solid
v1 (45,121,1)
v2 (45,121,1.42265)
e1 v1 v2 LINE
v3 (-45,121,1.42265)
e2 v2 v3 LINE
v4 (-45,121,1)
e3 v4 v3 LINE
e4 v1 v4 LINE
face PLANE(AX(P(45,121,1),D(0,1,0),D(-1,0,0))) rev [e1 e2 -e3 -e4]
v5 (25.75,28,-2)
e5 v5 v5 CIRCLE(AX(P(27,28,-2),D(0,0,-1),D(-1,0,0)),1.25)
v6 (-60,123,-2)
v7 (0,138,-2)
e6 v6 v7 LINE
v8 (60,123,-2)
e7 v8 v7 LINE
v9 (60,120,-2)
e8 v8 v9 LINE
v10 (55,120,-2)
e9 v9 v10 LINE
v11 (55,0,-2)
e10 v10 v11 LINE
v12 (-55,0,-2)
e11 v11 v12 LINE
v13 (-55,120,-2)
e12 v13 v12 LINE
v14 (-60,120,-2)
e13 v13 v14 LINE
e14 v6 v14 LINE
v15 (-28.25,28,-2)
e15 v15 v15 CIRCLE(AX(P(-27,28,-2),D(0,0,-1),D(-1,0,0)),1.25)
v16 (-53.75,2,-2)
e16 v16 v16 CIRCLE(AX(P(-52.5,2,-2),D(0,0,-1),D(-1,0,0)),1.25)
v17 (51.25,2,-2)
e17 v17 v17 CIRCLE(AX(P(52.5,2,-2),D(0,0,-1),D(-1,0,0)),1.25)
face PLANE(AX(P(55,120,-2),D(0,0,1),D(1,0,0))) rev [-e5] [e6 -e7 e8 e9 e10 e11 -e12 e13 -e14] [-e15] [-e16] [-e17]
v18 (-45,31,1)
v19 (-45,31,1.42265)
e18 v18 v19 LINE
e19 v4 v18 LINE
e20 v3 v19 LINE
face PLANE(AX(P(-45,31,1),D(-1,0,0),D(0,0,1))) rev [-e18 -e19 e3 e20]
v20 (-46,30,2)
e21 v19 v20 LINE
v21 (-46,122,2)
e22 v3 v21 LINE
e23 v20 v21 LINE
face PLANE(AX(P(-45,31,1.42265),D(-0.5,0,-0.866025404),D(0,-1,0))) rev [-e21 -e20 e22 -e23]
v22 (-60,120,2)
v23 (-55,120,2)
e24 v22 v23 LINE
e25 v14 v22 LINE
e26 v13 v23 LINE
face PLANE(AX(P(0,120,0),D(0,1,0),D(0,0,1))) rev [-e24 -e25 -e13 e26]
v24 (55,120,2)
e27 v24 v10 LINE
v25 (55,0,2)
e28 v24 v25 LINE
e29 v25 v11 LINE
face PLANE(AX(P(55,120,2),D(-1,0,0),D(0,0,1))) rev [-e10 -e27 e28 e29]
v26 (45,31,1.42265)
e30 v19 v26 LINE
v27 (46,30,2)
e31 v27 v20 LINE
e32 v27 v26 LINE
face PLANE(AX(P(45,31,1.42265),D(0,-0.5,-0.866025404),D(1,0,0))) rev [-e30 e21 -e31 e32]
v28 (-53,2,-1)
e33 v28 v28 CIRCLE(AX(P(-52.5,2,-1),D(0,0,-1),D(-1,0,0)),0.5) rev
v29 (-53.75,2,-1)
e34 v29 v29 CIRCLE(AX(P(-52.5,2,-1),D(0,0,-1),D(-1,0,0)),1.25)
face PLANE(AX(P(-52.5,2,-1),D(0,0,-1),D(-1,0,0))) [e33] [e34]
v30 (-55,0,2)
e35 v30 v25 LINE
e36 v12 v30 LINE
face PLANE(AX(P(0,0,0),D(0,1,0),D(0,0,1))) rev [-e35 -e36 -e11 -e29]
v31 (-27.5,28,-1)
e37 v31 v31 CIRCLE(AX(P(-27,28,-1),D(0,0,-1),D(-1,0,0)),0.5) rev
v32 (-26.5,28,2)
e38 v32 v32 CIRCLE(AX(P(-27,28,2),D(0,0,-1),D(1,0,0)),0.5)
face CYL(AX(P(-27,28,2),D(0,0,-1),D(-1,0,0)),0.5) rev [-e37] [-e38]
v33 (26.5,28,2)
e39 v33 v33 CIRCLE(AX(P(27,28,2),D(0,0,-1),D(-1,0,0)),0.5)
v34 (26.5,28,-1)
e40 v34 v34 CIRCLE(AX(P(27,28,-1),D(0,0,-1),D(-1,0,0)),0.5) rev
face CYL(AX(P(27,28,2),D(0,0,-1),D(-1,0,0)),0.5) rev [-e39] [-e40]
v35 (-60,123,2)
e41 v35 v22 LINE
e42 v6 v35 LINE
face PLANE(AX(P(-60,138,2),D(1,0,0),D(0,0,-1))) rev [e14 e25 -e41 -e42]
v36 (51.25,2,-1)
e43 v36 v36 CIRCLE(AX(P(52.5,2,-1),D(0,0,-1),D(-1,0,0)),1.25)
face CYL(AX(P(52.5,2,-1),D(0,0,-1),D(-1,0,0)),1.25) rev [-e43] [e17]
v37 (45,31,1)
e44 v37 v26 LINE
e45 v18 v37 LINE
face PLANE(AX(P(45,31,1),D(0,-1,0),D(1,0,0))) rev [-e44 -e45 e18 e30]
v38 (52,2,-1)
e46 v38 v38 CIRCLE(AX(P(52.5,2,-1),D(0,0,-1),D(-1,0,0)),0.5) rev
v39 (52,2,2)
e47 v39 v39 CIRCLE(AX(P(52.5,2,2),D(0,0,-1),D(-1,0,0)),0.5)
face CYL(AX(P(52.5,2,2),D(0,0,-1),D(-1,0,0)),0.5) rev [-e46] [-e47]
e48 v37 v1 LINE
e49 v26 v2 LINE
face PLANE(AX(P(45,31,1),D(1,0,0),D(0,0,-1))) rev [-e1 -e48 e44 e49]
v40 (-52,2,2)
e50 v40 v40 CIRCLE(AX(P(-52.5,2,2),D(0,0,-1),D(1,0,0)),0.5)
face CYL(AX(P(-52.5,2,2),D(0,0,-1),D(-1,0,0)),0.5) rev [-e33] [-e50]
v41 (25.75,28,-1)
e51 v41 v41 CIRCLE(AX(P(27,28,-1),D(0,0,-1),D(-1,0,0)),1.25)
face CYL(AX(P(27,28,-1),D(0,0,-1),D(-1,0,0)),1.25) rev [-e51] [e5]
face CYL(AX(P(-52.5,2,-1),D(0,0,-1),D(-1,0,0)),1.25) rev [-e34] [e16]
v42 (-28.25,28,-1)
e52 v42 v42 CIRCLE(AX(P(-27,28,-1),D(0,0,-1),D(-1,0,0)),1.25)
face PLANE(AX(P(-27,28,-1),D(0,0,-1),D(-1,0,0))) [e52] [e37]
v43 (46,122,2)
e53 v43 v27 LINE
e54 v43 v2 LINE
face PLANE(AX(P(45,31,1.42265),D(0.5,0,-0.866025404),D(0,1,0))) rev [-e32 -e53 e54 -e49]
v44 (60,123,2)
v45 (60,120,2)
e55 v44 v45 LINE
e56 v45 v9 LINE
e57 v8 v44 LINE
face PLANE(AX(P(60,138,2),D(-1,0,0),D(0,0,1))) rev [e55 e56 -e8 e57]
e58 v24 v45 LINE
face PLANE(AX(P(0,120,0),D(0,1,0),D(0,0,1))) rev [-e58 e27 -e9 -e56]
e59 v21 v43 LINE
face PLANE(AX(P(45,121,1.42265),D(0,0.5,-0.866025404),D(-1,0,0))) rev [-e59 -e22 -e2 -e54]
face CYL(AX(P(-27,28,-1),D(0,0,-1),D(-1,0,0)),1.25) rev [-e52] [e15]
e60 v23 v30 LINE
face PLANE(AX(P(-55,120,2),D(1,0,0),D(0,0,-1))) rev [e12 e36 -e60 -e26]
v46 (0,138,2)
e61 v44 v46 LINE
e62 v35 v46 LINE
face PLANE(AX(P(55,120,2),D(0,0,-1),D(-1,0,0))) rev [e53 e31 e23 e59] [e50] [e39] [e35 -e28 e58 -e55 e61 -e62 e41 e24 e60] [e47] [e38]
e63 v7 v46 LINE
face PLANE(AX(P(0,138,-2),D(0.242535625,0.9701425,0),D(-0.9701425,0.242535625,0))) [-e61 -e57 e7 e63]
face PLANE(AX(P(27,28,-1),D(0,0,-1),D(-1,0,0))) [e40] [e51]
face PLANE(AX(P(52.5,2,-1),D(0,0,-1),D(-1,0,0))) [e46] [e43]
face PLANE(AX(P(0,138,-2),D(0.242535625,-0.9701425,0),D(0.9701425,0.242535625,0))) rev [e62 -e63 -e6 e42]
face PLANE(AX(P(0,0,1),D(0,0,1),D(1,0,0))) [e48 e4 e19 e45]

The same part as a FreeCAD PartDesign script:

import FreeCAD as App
import Part
import Sketcher

V = App.Vector


def edges_at(feature, points):
    """Names of the edges that pass closest to the given points."""
    edges = feature.Shape.Edges
    near = lambda p: min(range(len(edges)), key=lambda i: edges[i].distToShape(Part.Vertex(*p))[0])
    return sorted({f"Edge{near(p) + 1}" for p in points})


def add_polygon(sketch, points):
    """Adds a closed chain of lines whose ends are joined by coincident constraints."""
    first, n = sketch.GeometryCount, len(points)
    for a, b in zip(points, points[1:] + points[:1]):
        sketch.addGeometry(Part.LineSegment(App.Vector(*a, 0), App.Vector(*b, 0)), False)
    for i in range(n):
        sketch.addConstraint(Sketcher.Constraint("Coincident", first + i, 2, first + (i + 1) % n, 1))

doc = App.newDocument("Part")
body = doc.addObject("PartDesign::Body", "Body")

# Sketch on XZ plane
sketch1 = body.newObject("Sketcher::SketchObject", "Sketch")
sketch1.AttachmentSupport = (doc.getObject("XZ_Plane"), [""])
sketch1.MapMode = "FlatFace"
add_polygon(sketch1, [(-55, -2), (-55, 2), (55, 2), (55, -2)])  # lines 0-3
sketch1.addConstraint([
    Sketcher.Constraint("Vertical", 0),
    Sketcher.Constraint("Horizontal", 1),
    Sketcher.Constraint("Vertical", 2),
    Sketcher.Constraint("Horizontal", 3),
    Sketcher.Constraint("Symmetric", 0, 2, 2, 2, -1, 1),
    Sketcher.Constraint("DistanceX", 1, 1, 1, 2, 110.0),
    Sketcher.Constraint("DistanceY", 0, 1, 0, 2, 4.0),
])
pad1 = body.newObject("PartDesign::Pad", "Pad")
pad1.Profile = sketch1
pad1.Length = 120
pad1.Reversed = True

# Sketch on XZ plane
sketch2 = body.newObject("Sketcher::SketchObject", "Sketch001")
sketch2.AttachmentSupport = (doc.getObject("XZ_Plane"), [""])
sketch2.MapMode = "FlatFace"
sketch2.AttachmentOffset = App.Placement(V(0, 0, -120), App.Rotation())
add_polygon(sketch2, [(-60, -2), (-60, 2), (60, 2), (60, -2)])  # lines 0-3
sketch2.addConstraint([
    Sketcher.Constraint("Vertical", 0),
    Sketcher.Constraint("Horizontal", 1),
    Sketcher.Constraint("Vertical", 2),
    Sketcher.Constraint("Horizontal", 3),
    Sketcher.Constraint("Symmetric", 0, 2, 2, 2, -1, 1),
    Sketcher.Constraint("DistanceX", 1, 1, 1, 2, 120.0),
    Sketcher.Constraint("DistanceY", 0, 1, 0, 2, 4.0),
])
pad2 = body.newObject("PartDesign::Pad", "Pad001")
pad2.Profile = sketch2
pad2.Length = 18
pad2.Reversed = True

# Sketch on XY plane
sketch3 = body.newObject("Sketcher::SketchObject", "Sketch002")
sketch3.AttachmentSupport = (doc.getObject("XY_Plane"), [""])
sketch3.MapMode = "FlatFace"
sketch3.AttachmentOffset = App.Placement(V(0, 0, 2), App.Rotation())
add_polygon(sketch3, [(0, 138), (-60, 138), (-60, 123)])  # lines 0-2
sketch3.addConstraint([
    Sketcher.Constraint("Horizontal", 0),
    Sketcher.Constraint("Vertical", 1),
    Sketcher.Constraint("PointOnObject", 2, 2, -2),
    Sketcher.Constraint("DistanceX", 0, 2, 0, 1, 60.0),
    Sketcher.Constraint("DistanceY", 1, 2, 1, 1, 15.0),
    Sketcher.Constraint("DistanceY", -1, 1, 0, 2, 138.0),
])
pocket1 = body.newObject("PartDesign::Pocket", "Pocket")
pocket1.Profile = sketch3
pocket1.Type = "ThroughAll"
doc.recompute()

mirrored = body.newObject("PartDesign::Mirrored", "Mirrored")
mirrored.Originals = [pocket1]
mirrored.MirrorPlane = (doc.getObject("YZ_Plane"), [""])
body.Tip = mirrored

# Sketch on XY plane
sketch4 = body.newObject("Sketcher::SketchObject", "Sketch003")
sketch4.AttachmentSupport = (doc.getObject("XY_Plane"), [""])
sketch4.MapMode = "FlatFace"
sketch4.AttachmentOffset = App.Placement(V(0, 0, 2), App.Rotation())
add_polygon(sketch4, [(-45, 121), (-45, 31), (45, 31), (45, 121)])  # lines 0-3
sketch4.addConstraint([
    Sketcher.Constraint("Vertical", 0),
    Sketcher.Constraint("Horizontal", 1),
    Sketcher.Constraint("Vertical", 2),
    Sketcher.Constraint("Horizontal", 3),
    Sketcher.Constraint("Equal", 3, 0),
    Sketcher.Constraint("DistanceX", 1, 1, 1, 2, 90.0),
    Sketcher.Constraint("DistanceX", 0, 2, -1, 1, 45.0),
    Sketcher.Constraint("DistanceY", -1, 1, 0, 2, 31.0),
])
pocket2 = body.newObject("PartDesign::Pocket", "Pocket001")
pocket2.Profile = sketch4
pocket2.Length = 1

# Sketch on XY plane
sketch5 = body.newObject("Sketcher::SketchObject", "Sketch004")
sketch5.AttachmentSupport = (doc.getObject("XY_Plane"), [""])
sketch5.MapMode = "FlatFace"
sketch5.AttachmentOffset = App.Placement(V(0, 0, -2), App.Rotation())
sketch5.addGeometry([
    Part.Circle(V(52.5, 2, 0), V(0, 0, 1), 0.5),
    Part.Circle(V(27, 28, 0), V(0, 0, 1), 0.5),
    Part.Circle(V(-27, 28, 0), V(0, 0, 1), 0.5),
    Part.Circle(V(-52.5, 2, 0), V(0, 0, 1), 0.5),
], False)
sketch5.addConstraint([
    Sketcher.Constraint("Equal", 0, 1),
    Sketcher.Constraint("Equal", 1, 2),
    Sketcher.Constraint("Equal", 2, 3),
    Sketcher.Constraint("Symmetric", 1, 3, 2, 3, -2),
    Sketcher.Constraint("Symmetric", 0, 3, 3, 3, -2),
    Sketcher.Constraint("Diameter", 0, 1.0),
    Sketcher.Constraint("DistanceY", -1, 1, 0, 3, 2.0),
    Sketcher.Constraint("DistanceX", -1, 1, 1, 3, 27.0),
    Sketcher.Constraint("DistanceY", -1, 1, 1, 3, 28.0),
    Sketcher.Constraint("DistanceX", 3, 3, 0, 3, 105.0),
])
pocket3 = body.newObject("PartDesign::Pocket", "Pocket002")
pocket3.Profile = sketch5
pocket3.Type = "ThroughAll"
pocket3.Reversed = True

# Sketch on XY plane
sketch6 = body.newObject("Sketcher::SketchObject", "Sketch005")
sketch6.AttachmentSupport = (doc.getObject("XY_Plane"), [""])
sketch6.MapMode = "FlatFace"
sketch6.AttachmentOffset = App.Placement(V(0, 0, -2), App.Rotation())
sketch6.addGeometry([
    Part.Circle(V(52.5, 2, 0), V(0, 0, 1), 1.25),
    Part.Circle(V(27, 28, 0), V(0, 0, 1), 1.25),
    Part.Circle(V(-27, 28, 0), V(0, 0, 1), 1.25),
    Part.Circle(V(-52.5, 2, 0), V(0, 0, 1), 1.25),
], False)
sketch6.addConstraint([
    Sketcher.Constraint("Equal", 0, 1),
    Sketcher.Constraint("Equal", 1, 2),
    Sketcher.Constraint("Equal", 2, 3),
    Sketcher.Constraint("Symmetric", 1, 3, 2, 3, -2),
    Sketcher.Constraint("Symmetric", 0, 3, 3, 3, -2),
    Sketcher.Constraint("Diameter", 0, 2.5),
    Sketcher.Constraint("DistanceY", -1, 1, 0, 3, 2.0),
    Sketcher.Constraint("DistanceX", -1, 1, 1, 3, 27.0),
    Sketcher.Constraint("DistanceY", -1, 1, 1, 3, 28.0),
    Sketcher.Constraint("DistanceX", 3, 3, 0, 3, 105.0),
])
pocket4 = body.newObject("PartDesign::Pocket", "Pocket003")
pocket4.Profile = sketch6
pocket4.Length = 1
pocket4.Reversed = True
doc.recompute()

chamfer = body.newObject("PartDesign::Chamfer", "Chamfer")
chamfer.Base = (pocket4, edges_at(pocket4, [
    (-45, 76, 2),
    (0, 31, 2),
    (45, 76, 2),
    (0, 121, 2),
]))
chamfer.ChamferType = "Two distances"
chamfer.Size = 1
chamfer.Size2 = 0.57735

doc.recompute()
